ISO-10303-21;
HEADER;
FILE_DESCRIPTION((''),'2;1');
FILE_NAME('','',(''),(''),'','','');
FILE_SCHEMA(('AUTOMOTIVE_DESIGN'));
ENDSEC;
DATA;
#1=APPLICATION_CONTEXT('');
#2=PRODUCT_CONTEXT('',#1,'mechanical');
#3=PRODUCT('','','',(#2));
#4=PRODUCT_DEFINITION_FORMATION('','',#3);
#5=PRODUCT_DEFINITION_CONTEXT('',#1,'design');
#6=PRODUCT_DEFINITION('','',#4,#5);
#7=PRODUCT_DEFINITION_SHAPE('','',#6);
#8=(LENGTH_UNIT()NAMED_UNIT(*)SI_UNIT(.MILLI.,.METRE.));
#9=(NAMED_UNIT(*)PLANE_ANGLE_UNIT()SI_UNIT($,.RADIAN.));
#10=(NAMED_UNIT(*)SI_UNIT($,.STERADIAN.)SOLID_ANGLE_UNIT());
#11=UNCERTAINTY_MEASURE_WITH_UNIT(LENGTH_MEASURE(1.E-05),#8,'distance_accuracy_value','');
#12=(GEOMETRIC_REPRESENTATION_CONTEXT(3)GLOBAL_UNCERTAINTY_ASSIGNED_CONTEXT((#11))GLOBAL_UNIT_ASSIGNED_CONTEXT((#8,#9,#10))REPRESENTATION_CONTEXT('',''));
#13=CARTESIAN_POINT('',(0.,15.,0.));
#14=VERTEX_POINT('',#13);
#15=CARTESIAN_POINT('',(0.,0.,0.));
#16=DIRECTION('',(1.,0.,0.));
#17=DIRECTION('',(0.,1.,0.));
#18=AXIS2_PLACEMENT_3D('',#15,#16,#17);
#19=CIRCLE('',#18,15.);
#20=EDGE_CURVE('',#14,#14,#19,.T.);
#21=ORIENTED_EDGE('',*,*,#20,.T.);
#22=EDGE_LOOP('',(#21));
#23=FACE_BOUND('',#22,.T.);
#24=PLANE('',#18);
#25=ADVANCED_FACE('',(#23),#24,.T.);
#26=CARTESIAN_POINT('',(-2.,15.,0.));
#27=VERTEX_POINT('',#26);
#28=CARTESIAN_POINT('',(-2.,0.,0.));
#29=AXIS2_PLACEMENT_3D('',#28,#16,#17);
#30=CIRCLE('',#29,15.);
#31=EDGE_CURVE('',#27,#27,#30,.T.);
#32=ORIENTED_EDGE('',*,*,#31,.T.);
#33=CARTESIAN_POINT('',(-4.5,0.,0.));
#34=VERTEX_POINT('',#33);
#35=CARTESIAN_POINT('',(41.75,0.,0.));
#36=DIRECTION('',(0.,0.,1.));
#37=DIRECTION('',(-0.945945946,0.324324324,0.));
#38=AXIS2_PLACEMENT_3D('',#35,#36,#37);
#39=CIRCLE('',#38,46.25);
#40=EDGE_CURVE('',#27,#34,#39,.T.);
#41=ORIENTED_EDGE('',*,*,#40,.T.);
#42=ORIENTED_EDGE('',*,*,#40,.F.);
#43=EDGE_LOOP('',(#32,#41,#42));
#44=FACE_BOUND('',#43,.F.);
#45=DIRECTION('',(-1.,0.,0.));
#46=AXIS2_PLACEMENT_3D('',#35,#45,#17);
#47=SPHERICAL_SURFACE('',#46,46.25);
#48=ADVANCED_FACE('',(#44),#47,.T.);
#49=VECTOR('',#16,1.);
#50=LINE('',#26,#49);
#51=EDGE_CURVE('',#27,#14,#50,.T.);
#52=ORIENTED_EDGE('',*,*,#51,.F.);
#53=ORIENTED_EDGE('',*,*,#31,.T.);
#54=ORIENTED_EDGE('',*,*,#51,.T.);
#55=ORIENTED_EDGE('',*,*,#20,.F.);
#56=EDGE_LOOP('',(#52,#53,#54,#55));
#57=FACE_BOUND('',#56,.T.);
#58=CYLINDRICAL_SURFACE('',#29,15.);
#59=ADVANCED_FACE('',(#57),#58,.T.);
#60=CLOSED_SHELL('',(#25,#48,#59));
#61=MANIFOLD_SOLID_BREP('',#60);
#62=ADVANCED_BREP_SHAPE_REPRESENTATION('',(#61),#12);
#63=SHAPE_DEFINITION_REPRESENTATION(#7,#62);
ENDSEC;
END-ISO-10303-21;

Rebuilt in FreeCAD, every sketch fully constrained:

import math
import FreeCAD as App
import Part
import Sketcher
from FreeCAD import Vector

doc = App.newDocument("Part")
body = doc.addObject("PartDesign::Body", "Body")

# Sketch on XY plane
sketch1 = body.newObject("Sketcher::SketchObject", "Sketch")
sketch1.AttachmentSupport = (doc.getObject("XY_Plane"), [""])
sketch1.MapMode = "FlatFace"
sketch1.addGeometry([
    Part.LineSegment(Vector(0, 15, 0), Vector(-2, 15, 0)),
    Part.ArcOfCircle(Part.Circle(Vector(41.75, 0, 0), Vector(0, 0, 1), 46.25), math.radians(161.075356), math.radians(180)),
    Part.LineSegment(Vector(-4.5, 0, 0), Vector(0, 0, 0)),
    Part.LineSegment(Vector(0, 0, 0), Vector(0, 15, 0)),
], False)
sketch1.addConstraint([
    Sketcher.Constraint("Coincident", 0, 2, 1, 1),
    Sketcher.Constraint("Coincident", 1, 2, 2, 1),
    Sketcher.Constraint("Coincident", 2, 2, 3, 1),
    Sketcher.Constraint("Coincident", 3, 2, 0, 1),
    Sketcher.Constraint("Horizontal", 0),
    Sketcher.Constraint("Horizontal", 2),
    Sketcher.Constraint("Vertical", 3),
    Sketcher.Constraint("Coincident", 2, 2, -1, 1),
    Sketcher.Constraint("PointOnObject", 1, 3, -1),
    Sketcher.Constraint("DistanceX", 0, 2, 0, 1, 2.0),
    Sketcher.Constraint("DistanceX", 2, 1, 2, 2, 4.5),
    Sketcher.Constraint("DistanceY", 3, 1, 3, 2, 15.0),
])
revolution = body.newObject("PartDesign::Revolution", "Revolution")
revolution.Profile = sketch1
revolution.ReferenceAxis = (sketch1, ["H_Axis"])
revolution.Angle = 360

doc.recompute()
